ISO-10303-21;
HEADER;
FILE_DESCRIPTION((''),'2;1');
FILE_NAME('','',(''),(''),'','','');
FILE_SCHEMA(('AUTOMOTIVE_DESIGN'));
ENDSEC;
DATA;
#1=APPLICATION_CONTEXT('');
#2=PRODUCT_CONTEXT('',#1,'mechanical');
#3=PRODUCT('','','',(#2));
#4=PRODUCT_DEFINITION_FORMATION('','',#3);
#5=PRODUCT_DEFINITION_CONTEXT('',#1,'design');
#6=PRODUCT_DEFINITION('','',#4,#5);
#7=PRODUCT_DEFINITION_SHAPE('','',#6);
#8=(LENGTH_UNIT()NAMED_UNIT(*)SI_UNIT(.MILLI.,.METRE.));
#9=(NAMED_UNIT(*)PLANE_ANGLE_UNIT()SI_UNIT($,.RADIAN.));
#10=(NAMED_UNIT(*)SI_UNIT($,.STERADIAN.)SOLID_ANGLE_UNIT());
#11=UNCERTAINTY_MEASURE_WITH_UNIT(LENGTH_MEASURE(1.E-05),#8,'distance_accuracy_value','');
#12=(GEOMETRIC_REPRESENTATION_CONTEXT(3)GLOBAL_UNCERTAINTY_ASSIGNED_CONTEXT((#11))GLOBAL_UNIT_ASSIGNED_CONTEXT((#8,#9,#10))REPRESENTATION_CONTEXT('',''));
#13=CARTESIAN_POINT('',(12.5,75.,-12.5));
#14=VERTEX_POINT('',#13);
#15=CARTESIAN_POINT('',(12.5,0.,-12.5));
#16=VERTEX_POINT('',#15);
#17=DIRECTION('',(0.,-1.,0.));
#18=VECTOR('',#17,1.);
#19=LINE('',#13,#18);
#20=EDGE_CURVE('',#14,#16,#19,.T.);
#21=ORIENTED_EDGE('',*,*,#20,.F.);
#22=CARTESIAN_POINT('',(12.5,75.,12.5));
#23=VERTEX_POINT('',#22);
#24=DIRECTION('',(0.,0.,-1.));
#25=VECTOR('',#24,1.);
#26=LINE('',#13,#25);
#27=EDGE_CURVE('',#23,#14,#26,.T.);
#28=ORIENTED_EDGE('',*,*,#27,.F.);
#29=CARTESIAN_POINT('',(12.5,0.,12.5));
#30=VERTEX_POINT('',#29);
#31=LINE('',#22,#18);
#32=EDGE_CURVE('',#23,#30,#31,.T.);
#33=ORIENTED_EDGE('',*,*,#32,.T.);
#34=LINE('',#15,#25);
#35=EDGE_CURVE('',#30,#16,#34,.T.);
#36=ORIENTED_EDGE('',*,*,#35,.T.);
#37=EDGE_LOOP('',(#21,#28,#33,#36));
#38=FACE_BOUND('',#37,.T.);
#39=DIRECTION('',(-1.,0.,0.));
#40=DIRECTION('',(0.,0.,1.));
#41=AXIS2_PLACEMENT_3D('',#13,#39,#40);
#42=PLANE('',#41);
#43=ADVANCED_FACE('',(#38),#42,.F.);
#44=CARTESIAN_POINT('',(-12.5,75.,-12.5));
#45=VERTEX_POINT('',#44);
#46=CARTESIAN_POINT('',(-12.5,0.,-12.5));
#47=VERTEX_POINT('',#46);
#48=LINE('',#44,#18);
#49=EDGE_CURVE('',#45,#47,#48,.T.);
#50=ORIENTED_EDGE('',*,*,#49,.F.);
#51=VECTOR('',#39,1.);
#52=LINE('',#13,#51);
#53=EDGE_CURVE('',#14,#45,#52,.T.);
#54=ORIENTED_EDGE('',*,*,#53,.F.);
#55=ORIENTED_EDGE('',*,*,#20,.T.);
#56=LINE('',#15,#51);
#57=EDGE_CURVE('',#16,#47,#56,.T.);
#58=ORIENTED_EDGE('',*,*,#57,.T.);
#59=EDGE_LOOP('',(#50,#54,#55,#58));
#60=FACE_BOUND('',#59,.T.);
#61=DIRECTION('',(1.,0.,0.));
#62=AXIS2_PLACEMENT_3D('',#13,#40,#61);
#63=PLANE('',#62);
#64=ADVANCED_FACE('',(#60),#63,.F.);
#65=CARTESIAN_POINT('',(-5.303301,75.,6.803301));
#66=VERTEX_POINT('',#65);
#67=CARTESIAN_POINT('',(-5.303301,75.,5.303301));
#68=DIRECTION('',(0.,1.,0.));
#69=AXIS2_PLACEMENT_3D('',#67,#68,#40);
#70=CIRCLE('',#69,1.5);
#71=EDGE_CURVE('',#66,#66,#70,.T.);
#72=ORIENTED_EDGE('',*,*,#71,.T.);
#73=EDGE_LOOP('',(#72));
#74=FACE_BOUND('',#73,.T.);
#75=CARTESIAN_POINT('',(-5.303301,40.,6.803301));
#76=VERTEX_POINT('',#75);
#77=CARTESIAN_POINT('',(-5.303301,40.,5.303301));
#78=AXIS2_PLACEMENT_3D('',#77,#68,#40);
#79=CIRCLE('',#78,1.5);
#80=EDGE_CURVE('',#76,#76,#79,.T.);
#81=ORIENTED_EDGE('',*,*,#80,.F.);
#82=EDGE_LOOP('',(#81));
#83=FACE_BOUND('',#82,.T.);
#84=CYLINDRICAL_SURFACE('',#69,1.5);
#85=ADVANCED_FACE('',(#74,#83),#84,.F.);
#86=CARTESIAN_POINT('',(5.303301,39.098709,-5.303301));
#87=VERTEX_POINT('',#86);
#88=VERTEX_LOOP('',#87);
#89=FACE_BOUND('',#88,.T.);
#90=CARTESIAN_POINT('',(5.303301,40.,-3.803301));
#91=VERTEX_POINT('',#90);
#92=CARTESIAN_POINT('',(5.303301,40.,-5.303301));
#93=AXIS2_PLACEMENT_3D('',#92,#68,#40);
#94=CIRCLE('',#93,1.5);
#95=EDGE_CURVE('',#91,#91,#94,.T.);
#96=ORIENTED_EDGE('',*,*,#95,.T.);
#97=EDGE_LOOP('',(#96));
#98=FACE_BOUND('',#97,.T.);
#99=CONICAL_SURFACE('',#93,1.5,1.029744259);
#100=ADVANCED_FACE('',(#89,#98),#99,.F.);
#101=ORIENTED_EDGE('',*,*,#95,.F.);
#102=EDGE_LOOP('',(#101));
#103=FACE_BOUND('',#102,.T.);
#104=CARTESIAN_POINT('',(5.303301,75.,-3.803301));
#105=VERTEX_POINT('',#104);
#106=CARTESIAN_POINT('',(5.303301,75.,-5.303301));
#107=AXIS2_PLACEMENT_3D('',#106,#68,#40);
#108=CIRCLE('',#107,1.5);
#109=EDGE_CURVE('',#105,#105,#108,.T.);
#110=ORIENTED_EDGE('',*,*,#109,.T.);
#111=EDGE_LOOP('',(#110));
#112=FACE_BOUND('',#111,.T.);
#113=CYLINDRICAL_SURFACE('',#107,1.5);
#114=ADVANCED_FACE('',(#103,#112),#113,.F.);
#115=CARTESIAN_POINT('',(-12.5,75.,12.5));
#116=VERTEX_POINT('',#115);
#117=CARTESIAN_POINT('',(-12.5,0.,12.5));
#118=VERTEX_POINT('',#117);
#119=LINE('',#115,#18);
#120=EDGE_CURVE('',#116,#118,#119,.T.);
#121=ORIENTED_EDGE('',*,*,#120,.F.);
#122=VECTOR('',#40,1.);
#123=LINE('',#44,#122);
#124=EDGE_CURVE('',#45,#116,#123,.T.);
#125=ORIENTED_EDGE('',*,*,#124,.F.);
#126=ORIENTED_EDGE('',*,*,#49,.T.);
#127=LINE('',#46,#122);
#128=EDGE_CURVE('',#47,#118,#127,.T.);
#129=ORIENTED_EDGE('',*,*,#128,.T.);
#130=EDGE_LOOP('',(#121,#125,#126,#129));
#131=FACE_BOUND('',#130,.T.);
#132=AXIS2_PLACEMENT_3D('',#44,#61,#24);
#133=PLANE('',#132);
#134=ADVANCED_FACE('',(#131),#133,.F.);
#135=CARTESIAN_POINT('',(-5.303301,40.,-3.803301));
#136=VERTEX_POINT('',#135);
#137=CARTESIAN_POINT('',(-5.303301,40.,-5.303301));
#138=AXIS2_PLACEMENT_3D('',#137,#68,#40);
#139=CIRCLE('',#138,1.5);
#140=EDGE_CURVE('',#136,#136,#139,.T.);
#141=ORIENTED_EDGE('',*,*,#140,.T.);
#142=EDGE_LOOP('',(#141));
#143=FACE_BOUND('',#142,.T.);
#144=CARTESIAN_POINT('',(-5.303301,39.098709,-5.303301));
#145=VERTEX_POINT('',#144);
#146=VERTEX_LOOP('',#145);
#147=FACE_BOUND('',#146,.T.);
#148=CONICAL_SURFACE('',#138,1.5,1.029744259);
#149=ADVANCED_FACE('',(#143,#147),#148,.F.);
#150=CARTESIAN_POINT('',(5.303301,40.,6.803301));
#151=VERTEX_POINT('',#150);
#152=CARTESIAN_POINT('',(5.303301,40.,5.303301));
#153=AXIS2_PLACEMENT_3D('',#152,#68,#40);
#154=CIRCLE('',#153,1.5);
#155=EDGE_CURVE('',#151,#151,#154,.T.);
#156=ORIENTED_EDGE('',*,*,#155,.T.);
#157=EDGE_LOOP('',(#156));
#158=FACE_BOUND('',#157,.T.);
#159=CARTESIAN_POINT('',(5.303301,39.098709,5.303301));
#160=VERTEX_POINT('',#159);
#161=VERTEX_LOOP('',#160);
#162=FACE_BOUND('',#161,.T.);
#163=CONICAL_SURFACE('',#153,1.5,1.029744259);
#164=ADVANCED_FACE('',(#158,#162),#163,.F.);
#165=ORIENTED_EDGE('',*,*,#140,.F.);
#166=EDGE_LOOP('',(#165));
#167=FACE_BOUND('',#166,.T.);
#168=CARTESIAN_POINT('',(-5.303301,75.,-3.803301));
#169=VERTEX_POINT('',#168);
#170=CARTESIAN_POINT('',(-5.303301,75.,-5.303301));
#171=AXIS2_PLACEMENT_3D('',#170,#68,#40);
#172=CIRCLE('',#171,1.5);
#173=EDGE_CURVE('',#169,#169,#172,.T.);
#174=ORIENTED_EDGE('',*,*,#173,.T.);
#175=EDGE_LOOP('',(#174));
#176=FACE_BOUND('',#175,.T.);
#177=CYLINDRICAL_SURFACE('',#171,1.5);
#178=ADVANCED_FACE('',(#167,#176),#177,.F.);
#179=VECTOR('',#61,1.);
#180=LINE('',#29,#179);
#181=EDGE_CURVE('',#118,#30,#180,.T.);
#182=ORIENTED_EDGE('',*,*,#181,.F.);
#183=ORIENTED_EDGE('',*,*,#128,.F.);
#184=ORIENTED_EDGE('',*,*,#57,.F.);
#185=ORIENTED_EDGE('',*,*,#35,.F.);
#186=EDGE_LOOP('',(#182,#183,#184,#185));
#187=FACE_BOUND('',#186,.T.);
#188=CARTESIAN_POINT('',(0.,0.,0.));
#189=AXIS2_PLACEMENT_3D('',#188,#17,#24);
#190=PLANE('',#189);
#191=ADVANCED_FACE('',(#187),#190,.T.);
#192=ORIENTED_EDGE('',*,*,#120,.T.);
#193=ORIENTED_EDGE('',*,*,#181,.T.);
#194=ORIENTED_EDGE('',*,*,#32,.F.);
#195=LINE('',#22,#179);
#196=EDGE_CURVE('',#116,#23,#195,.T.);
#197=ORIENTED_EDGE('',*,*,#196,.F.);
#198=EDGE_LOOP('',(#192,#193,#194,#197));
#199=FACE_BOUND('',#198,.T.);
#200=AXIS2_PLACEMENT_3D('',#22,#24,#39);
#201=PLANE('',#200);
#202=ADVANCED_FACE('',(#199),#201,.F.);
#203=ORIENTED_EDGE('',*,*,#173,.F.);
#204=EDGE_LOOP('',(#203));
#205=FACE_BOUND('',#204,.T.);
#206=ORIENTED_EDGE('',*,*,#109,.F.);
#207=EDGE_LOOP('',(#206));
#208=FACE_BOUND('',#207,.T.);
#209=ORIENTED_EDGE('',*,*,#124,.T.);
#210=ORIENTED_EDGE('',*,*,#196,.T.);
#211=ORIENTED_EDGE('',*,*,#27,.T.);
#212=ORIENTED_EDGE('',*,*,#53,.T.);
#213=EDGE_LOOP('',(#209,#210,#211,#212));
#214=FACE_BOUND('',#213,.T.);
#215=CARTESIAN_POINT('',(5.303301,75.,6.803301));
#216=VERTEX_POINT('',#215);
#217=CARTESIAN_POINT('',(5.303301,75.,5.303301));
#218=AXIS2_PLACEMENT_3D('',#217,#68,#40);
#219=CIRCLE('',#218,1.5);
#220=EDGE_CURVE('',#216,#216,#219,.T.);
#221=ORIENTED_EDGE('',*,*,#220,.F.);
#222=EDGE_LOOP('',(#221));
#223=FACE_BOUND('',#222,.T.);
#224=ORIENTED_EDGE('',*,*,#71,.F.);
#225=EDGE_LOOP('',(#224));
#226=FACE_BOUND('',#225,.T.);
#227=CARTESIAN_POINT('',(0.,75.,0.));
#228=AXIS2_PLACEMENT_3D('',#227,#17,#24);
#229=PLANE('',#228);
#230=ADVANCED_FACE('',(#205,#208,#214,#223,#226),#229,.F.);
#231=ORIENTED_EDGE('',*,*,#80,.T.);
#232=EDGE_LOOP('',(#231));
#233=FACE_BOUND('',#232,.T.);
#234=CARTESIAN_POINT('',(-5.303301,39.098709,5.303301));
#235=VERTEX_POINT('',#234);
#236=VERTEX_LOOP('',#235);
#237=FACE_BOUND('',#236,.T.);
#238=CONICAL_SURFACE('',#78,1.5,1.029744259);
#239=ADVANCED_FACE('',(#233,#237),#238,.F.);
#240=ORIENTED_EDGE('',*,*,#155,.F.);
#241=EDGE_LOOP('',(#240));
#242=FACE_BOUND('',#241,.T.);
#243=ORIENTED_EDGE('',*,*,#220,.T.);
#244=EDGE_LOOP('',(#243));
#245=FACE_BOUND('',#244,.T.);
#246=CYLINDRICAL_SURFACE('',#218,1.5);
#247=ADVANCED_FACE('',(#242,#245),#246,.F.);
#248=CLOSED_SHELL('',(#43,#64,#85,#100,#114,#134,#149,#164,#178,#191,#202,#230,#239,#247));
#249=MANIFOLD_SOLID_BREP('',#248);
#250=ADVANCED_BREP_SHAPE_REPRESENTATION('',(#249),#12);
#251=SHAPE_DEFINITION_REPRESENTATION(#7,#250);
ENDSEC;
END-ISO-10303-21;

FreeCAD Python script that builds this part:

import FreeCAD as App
import Part
import Sketcher

V = App.Vector
Q = App.Units.Quantity


def add_polygon(sketch, points):
    """Adds a closed chain of lines whose ends are joined by coincident constraints."""
    first, n = sketch.GeometryCount, len(points)
    for a, b in zip(points, points[1:] + points[:1]):
        sketch.addGeometry(Part.LineSegment(App.Vector(*a, 0), App.Vector(*b, 0)), False)
    for i in range(n):
        sketch.addConstraint(Sketcher.Constraint("Coincident", first + i, 2, first + (i + 1) % n, 1))

doc = App.newDocument("Part")
body = doc.addObject("PartDesign::Body", "Body")

# Sketch on XZ plane
sketch1 = body.newObject("Sketcher::SketchObject", "Sketch")
sketch1.AttachmentSupport = (doc.getObject("XZ_Plane"), [""])
sketch1.MapMode = "FlatFace"
add_polygon(sketch1, [(-12.5, -12.5), (-12.5, 12.5), (12.5, 12.5), (12.5, -12.5)])  # lines 0-3
sketch1.addConstraint([
    Sketcher.Constraint("Vertical", 0),
    Sketcher.Constraint("Horizontal", 1),
    Sketcher.Constraint("Vertical", 2),
    Sketcher.Constraint("Horizontal", 3),
    Sketcher.Constraint("Symmetric", 0, 2, 2, 2, -1, 1),
    Sketcher.Constraint("Equal", 3, 0),
    Sketcher.Constraint("DistanceX", 1, 1, 1, 2, Q("25 mm")),
])
pad1 = body.newObject("PartDesign::Pad", "Pad")
pad1.Profile = sketch1
pad1.Length = 75
pad1.Reversed = True

# Sketch on XZ plane
sketch2 = body.newObject("Sketcher::SketchObject", "Sketch001")
sketch2.AttachmentSupport = (doc.getObject("XZ_Plane"), [""])
sketch2.MapMode = "FlatFace"
sketch2.AttachmentOffset = App.Placement(V(0, 0, -75), App.Rotation())
sketch2.addGeometry([
    Part.Circle(V(-5.303301, 5.303301, 0), V(0, 0, 1), 1.5),
    Part.Circle(V(5.303301, 5.303301, 0), V(0, 0, 1), 1.5),
    Part.Circle(V(5.303301, -5.303301, 0), V(0, 0, 1), 1.5),
    Part.Circle(V(-5.303301, -5.303301, 0), V(0, 0, 1), 1.5),
], False)
sketch2.addConstraint([
    Sketcher.Constraint("Equal", 0, 1),
    Sketcher.Constraint("Equal", 1, 2),
    Sketcher.Constraint("Equal", 2, 3),
    Sketcher.Constraint("Symmetric", 0, 3, 2, 3, -1, 1),
    Sketcher.Constraint("Symmetric", 1, 3, 3, 3, -1, 1),
    Sketcher.Constraint("Symmetric", 0, 3, 1, 3, -2),
    Sketcher.Constraint("Diameter", 0, Q("3 mm")),
    Sketcher.Constraint("DistanceX", 0, 3, -1, 1, Q("5.303301 mm")),
    Sketcher.Constraint("DistanceY", -1, 1, 0, 3, Q("5.303301 mm")),
])
doc.recompute()
hole = body.newObject("PartDesign::Hole", "Hole")
hole.Profile = sketch2
hole.ThreadType = "None"
hole.Diameter = 3
hole.DepthType = "Dimension"
hole.Depth = 35
hole.DrillPoint = "Angled"
hole.DrillPointAngle = 118
hole.Reversed = True

doc.recompute()
